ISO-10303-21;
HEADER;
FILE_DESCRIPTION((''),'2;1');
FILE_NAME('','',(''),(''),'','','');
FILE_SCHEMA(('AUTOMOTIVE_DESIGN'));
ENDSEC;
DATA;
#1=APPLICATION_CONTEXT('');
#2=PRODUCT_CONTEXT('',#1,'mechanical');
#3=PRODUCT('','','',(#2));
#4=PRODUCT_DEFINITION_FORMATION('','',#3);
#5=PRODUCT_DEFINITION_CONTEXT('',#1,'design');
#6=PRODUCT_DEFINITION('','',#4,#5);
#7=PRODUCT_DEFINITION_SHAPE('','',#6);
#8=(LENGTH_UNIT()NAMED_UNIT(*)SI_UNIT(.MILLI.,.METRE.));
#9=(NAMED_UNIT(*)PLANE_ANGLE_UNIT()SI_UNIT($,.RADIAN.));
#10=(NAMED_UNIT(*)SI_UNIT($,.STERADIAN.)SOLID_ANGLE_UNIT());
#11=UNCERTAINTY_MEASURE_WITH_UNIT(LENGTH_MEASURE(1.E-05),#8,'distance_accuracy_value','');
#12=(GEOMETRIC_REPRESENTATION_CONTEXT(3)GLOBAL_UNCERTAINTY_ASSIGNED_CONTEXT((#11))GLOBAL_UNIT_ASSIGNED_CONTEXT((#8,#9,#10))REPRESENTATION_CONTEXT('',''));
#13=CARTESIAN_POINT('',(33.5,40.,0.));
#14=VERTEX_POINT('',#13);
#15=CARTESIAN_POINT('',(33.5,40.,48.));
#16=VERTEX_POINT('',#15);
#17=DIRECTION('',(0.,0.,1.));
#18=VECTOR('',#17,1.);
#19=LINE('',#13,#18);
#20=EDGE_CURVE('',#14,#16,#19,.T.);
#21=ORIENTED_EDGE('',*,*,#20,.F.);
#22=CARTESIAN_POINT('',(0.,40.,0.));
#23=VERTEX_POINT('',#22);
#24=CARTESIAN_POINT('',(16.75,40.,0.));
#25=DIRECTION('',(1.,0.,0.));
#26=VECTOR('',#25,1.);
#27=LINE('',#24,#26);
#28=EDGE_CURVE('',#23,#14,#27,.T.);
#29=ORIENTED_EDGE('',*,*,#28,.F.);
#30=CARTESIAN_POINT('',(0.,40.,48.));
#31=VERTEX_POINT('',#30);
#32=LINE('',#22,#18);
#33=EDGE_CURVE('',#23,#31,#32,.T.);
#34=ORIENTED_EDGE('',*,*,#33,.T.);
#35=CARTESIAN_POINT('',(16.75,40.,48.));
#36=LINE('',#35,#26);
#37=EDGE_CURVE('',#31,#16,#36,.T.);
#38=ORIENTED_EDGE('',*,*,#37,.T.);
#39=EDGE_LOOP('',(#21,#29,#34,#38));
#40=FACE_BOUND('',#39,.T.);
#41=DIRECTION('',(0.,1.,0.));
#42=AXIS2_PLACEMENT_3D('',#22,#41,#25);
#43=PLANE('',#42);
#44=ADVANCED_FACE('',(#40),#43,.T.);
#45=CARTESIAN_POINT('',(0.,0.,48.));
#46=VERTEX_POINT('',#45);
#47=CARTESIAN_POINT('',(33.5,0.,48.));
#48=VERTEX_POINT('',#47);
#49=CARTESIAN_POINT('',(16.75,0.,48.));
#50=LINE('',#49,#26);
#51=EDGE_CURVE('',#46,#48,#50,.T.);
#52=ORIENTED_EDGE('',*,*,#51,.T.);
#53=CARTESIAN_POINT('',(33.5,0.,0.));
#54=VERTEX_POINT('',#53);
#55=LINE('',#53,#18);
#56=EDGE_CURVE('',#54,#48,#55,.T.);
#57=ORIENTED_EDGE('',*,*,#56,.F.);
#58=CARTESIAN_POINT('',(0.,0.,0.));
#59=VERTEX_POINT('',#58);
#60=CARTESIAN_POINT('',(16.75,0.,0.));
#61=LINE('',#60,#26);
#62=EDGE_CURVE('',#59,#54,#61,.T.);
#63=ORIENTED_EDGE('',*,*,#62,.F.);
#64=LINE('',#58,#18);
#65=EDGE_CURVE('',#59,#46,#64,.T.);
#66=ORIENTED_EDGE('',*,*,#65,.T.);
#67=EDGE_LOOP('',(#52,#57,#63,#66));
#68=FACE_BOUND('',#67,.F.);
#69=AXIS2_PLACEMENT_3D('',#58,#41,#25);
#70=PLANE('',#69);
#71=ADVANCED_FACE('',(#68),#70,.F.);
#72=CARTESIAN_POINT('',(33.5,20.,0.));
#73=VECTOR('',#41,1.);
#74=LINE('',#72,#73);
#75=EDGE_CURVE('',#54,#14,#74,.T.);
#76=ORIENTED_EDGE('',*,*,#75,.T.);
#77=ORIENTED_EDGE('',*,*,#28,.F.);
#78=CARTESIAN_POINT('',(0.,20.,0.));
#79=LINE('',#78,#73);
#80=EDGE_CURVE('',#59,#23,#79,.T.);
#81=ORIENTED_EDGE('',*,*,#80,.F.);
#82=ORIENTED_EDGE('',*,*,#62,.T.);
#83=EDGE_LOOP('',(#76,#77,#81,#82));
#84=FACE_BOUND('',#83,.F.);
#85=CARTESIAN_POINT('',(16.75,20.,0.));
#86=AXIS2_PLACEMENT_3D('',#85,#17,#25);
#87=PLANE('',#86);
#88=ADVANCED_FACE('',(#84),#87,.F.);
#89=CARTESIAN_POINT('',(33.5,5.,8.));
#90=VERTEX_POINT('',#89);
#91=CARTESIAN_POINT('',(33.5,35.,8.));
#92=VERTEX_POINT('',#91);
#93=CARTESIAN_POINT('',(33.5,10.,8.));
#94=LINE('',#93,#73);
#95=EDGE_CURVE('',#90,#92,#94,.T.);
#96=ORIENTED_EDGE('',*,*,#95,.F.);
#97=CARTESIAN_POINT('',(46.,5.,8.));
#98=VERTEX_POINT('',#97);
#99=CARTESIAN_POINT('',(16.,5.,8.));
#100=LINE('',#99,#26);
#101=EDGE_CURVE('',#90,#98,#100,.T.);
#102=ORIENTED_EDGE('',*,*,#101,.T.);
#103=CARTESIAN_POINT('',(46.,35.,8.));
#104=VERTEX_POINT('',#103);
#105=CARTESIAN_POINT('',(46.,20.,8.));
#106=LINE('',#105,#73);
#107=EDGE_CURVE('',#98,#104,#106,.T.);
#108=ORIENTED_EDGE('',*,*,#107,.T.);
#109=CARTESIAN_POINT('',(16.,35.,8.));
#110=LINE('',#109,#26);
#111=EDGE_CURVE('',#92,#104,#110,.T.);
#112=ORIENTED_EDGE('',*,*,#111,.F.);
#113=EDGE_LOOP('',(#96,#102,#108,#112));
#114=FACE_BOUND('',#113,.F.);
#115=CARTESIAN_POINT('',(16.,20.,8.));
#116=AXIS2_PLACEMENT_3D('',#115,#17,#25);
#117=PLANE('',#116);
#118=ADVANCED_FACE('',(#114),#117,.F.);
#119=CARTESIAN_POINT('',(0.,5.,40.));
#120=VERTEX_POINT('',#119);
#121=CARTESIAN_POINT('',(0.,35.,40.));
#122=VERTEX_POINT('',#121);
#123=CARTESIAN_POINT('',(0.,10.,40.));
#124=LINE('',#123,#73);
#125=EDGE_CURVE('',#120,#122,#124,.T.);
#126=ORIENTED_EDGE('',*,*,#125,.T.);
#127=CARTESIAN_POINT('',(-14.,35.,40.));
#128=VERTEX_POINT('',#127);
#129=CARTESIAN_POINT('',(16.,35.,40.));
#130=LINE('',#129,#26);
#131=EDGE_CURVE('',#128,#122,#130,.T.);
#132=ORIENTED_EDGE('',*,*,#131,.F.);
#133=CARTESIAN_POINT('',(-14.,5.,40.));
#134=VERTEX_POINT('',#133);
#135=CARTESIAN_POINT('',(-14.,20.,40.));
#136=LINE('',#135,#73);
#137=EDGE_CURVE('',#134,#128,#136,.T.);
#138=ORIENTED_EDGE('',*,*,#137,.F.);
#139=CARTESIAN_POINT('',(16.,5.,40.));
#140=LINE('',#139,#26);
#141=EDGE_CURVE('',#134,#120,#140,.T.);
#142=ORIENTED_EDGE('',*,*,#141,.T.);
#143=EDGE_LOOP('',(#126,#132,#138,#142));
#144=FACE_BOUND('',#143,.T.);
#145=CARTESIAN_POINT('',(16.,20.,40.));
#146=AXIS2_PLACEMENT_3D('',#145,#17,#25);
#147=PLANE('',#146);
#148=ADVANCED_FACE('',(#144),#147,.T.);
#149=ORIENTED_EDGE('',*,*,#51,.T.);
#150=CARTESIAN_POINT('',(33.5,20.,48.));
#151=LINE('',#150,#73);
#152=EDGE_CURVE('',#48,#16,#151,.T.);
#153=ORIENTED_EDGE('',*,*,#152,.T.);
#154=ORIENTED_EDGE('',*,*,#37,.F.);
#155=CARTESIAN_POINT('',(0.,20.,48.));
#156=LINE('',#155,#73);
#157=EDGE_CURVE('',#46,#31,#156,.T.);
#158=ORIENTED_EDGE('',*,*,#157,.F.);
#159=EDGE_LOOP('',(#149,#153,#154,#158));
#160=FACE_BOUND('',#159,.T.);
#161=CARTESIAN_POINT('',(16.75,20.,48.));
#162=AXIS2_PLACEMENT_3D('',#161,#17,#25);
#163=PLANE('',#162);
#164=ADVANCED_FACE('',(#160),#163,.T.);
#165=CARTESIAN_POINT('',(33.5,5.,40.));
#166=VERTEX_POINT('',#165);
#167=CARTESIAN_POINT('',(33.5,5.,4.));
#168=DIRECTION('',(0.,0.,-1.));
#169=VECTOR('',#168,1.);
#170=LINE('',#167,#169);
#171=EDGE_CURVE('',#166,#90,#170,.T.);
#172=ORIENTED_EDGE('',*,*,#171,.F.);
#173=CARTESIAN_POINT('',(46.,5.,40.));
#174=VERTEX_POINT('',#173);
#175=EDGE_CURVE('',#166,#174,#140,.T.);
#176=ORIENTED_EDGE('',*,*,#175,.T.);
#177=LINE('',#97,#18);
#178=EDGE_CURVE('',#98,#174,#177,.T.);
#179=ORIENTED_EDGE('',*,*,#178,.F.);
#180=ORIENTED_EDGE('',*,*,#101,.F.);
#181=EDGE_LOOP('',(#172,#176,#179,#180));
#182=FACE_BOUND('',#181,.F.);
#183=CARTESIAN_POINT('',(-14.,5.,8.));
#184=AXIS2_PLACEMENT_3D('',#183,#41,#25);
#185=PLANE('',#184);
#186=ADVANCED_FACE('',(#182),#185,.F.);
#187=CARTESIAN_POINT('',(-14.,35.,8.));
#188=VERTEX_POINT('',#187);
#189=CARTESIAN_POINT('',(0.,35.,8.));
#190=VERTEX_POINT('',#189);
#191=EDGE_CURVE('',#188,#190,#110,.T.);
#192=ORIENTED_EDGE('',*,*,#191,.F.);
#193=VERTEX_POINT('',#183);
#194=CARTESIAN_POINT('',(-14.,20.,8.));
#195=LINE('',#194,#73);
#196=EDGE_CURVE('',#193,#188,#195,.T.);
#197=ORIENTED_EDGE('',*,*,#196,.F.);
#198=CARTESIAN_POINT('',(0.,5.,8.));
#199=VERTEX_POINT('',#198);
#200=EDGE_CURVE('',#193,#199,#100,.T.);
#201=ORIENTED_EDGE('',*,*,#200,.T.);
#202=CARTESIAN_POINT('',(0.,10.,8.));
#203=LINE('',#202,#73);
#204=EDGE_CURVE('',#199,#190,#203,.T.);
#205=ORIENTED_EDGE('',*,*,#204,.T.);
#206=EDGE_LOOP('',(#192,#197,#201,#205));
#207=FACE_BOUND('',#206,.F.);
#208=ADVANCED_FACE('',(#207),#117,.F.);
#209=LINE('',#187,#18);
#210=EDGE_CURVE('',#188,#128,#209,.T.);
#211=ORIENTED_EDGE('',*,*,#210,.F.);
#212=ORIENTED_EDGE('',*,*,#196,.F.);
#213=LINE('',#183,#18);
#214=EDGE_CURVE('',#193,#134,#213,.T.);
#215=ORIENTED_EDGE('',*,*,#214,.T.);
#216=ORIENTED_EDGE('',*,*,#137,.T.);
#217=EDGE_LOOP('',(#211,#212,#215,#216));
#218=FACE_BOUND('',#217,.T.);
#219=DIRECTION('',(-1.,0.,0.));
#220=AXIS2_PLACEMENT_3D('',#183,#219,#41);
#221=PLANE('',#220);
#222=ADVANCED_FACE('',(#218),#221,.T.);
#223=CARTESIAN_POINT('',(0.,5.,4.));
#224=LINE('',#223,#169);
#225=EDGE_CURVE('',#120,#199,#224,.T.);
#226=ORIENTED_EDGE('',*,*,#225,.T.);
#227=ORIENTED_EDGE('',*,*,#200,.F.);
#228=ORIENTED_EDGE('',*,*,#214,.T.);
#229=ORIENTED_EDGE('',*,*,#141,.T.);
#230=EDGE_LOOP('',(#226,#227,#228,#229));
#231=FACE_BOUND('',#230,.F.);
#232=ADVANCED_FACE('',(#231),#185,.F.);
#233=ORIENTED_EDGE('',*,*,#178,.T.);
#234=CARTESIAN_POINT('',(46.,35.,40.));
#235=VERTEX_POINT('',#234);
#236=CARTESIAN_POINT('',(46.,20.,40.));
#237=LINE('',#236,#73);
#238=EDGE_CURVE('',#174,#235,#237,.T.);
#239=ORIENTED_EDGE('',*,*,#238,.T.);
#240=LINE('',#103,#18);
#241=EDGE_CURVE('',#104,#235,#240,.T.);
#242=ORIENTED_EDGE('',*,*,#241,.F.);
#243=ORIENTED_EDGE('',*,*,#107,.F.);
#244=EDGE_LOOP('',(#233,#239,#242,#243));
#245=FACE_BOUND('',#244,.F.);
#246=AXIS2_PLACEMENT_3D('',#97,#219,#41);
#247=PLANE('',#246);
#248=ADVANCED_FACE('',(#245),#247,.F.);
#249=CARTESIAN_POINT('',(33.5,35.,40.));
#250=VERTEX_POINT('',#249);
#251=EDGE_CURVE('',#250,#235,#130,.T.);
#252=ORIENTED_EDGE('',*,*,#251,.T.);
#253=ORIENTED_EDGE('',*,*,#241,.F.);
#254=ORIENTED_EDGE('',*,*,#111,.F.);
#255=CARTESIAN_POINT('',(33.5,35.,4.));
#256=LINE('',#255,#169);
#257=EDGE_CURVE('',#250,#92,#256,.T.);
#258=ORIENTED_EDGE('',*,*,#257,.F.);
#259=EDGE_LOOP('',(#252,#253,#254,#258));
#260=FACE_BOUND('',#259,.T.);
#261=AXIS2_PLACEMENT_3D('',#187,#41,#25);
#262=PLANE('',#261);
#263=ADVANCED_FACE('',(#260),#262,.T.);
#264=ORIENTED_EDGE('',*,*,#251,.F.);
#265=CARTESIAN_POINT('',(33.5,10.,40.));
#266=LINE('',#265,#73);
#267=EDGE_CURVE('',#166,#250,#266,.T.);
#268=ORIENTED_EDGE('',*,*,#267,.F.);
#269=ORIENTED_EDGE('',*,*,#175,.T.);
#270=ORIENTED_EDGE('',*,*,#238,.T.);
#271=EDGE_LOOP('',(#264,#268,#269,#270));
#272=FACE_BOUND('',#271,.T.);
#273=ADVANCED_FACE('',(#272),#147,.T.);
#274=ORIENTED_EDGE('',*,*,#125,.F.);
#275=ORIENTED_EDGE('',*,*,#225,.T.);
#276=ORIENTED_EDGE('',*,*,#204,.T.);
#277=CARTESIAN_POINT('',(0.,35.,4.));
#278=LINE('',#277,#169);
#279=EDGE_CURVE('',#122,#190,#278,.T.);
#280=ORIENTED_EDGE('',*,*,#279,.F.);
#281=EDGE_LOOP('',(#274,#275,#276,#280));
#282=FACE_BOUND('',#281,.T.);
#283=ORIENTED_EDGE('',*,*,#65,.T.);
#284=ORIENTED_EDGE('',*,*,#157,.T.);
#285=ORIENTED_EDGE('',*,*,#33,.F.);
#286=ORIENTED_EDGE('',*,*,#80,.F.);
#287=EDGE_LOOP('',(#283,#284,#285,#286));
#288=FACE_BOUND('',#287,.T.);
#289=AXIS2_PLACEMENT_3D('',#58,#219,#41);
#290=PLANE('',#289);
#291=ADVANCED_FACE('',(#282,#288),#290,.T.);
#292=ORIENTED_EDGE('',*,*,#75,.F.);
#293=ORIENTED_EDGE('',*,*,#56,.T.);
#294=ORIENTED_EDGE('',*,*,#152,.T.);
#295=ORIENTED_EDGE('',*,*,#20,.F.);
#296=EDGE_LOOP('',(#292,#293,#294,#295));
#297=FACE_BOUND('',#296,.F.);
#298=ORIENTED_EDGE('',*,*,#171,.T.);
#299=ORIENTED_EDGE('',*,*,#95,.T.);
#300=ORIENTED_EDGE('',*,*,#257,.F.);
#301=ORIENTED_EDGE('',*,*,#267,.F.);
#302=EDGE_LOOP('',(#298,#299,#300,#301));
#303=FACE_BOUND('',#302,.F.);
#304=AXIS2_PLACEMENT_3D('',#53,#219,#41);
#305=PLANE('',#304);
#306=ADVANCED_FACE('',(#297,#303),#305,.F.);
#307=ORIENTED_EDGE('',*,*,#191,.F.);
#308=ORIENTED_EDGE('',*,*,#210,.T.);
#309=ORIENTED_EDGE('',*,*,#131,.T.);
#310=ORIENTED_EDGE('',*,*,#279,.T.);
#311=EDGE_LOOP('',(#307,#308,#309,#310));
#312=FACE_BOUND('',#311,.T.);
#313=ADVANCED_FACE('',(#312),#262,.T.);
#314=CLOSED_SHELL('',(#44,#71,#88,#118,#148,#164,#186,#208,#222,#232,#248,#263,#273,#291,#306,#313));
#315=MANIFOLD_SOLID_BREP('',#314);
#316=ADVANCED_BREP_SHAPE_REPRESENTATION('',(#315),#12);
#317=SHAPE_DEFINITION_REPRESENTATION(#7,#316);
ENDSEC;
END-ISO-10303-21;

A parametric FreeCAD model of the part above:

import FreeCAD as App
import Part
import Sketcher
from FreeCAD import Vector


def add_polygon(sketch, points):
    """Adds a closed chain of lines whose ends are joined by coincident constraints."""
    first, n = sketch.GeometryCount, len(points)
    for a, b in zip(points, points[1:] + points[:1]):
        sketch.addGeometry(Part.LineSegment(App.Vector(*a, 0), App.Vector(*b, 0)), False)
    for i in range(n):
        sketch.addConstraint(Sketcher.Constraint("Coincident", first + i, 2, first + (i + 1) % n, 1))

doc = App.newDocument("Part")
params = doc.addObject("Spreadsheet::Sheet", "Params")
for row, (alias, value) in enumerate([
    ("sketch1_width", "60 mm"),
    ("sketch1_height", "30 mm"),
    ("pad1_length", "32 mm"),
    ("sketch2_height", "40 mm"),
    ("sketch2_width", "33.5 mm"),
    ("pad2_length", "48 mm"),
], start=1):
    params.set(f"A{row}", alias)
    params.set(f"B{row}", "=" + value)
    params.setAlias(f"B{row}", alias)

body = doc.addObject("PartDesign::Body", "Body")

sketch1 = body.newObject("Sketcher::SketchObject", "Sketch")
sketch1.AttachmentSupport = (doc.getObject("XY_Plane"), [""])
sketch1.MapMode = "FlatFace"
sketch1.AttachmentOffset = App.Placement(Vector(0, 0, 8), App.Rotation())
add_polygon(sketch1, [(-14, 35), (-14, 5), (46, 5), (46, 35)])
sketch1.addConstraint([
    Sketcher.Constraint("Vertical", 0),
    Sketcher.Constraint("Horizontal", 1),
    Sketcher.Constraint("Vertical", 2),
    Sketcher.Constraint("Horizontal", 3),
    Sketcher.Constraint("DistanceX", 1, 1, 1, 2, 60.0),
    Sketcher.Constraint("DistanceY", 0, 2, 0, 1, 30.0),
    Sketcher.Constraint("DistanceX", 0, 2, -1, 1, 14.0),
    Sketcher.Constraint("DistanceY", -1, 1, 0, 2, 5.0),
])
sketch1.setExpression("Constraints[8]", "Params.sketch1_width")
sketch1.setExpression("Constraints[9]", "Params.sketch1_height")
pad1 = body.newObject("PartDesign::Pad", "Pad")
pad1.Profile = sketch1
pad1.setExpression("Length", "Params.pad1_length")
body2 = doc.addObject("PartDesign::Body", "Body001")

sketch2 = body2.newObject("Sketcher::SketchObject", "Sketch001")
sketch2.AttachmentSupport = (doc.getObject("XY_Plane001"), [""])
sketch2.MapMode = "FlatFace"
add_polygon(sketch2, [(0, 40), (0, 0), (34, 0), (34, 40)])
sketch2.addConstraint([
    Sketcher.Constraint("Vertical", 0),
    Sketcher.Constraint("Horizontal", 1),
    Sketcher.Constraint("Vertical", 2),
    Sketcher.Constraint("Horizontal", 3),
    Sketcher.Constraint("Coincident", 0, 2, -1, 1),
    Sketcher.Constraint("DistanceY", 0, 2, 0, 1, 40.0),
    Sketcher.Constraint("DistanceX", 1, 1, 1, 2, 33.5),
])
sketch2.setExpression("Constraints[9]", "Params.sketch2_height")
sketch2.setExpression("Constraints[10]", "Params.sketch2_width")
pad2 = body2.newObject("PartDesign::Pad", "Pad001")
pad2.Profile = sketch2
pad2.setExpression("Length", "Params.pad2_length")
doc.recompute()

boolean = body2.newObject("PartDesign::Boolean", "Boolean")
boolean.Type = "Fuse"
boolean.addObjects([body])

doc.recompute()
